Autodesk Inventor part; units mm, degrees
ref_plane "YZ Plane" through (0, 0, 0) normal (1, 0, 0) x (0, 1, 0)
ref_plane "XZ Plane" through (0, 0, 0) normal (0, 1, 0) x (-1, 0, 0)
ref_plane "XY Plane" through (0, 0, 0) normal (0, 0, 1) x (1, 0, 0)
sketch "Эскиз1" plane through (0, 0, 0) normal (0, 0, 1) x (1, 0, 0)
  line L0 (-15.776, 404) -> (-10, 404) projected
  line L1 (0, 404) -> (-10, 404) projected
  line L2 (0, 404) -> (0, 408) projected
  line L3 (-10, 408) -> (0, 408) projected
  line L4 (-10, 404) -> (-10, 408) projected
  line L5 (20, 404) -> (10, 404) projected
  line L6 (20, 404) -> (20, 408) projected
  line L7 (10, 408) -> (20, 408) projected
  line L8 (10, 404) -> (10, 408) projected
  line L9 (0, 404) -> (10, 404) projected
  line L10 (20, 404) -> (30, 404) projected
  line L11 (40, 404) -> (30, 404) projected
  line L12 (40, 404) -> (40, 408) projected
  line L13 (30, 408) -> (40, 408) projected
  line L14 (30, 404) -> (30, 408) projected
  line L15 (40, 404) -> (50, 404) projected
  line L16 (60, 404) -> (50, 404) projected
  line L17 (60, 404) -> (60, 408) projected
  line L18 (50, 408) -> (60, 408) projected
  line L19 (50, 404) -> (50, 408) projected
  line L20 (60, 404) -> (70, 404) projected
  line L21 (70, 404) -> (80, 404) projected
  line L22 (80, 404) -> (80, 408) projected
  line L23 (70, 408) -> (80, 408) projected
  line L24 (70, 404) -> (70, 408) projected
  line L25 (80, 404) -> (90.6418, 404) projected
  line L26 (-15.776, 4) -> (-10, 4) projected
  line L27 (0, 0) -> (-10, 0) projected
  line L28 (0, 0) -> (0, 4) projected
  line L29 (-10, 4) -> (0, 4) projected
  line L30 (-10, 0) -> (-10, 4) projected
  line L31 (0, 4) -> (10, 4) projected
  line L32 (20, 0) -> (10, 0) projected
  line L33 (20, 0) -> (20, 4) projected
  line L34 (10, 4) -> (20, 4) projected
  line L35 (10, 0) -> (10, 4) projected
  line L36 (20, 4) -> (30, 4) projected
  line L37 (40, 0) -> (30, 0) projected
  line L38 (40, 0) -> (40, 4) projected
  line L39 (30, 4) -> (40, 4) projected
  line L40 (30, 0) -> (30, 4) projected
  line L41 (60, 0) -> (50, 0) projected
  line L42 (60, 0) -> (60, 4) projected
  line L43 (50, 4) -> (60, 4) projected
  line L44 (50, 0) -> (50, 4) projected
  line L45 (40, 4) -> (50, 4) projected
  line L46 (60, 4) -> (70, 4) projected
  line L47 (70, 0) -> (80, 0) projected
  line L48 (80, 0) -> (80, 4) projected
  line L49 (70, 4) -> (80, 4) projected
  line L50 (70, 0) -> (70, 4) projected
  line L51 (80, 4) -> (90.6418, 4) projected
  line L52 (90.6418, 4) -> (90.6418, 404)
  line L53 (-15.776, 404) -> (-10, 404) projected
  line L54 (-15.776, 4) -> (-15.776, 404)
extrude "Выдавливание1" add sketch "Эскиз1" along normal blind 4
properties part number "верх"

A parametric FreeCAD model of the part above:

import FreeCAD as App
import Part
import Sketcher

V = App.Vector


def add_polygon(sketch, points):
    """Adds a closed chain of lines whose ends are joined by coincident constraints."""
    first, n = sketch.GeometryCount, len(points)
    for a, b in zip(points, points[1:] + points[:1]):
        sketch.addGeometry(Part.LineSegment(App.Vector(*a, 0), App.Vector(*b, 0)), False)
    for i in range(n):
        sketch.addConstraint(Sketcher.Constraint("Coincident", first + i, 2, first + (i + 1) % n, 1))

doc = App.newDocument("Part")
body = doc.addObject("PartDesign::Body", "Body")

sketch1 = body.newObject("Sketcher::SketchObject", "Sketch")
sketch1.AttachmentSupport = (doc.getObject("XY_Plane"), [""])
sketch1.MapMode = "FlatFace"
add_polygon(sketch1, [(-10, 404), (-15.776, 404), (-15.776, 4), (-10, 4), (-10, 0), (0, 0), (0, 4), (10, 4), (10, 0), (20, 0), (20, 4), (30, 4), (30, 0), (40, 0), (40, 4), (50, 4), (50, 0), (60, 0), (60, 4), (70, 4), (70, 0), (80, 0), (80, 4), (90.6418, 4), (90.6418, 404), (80, 404), (80, 408), (70, 408), (70, 404), (60, 404), (60, 408), (50, 408), (50, 404), (40, 404), (40, 408), (30, 408), (30, 404), (20, 404), (20, 408), (10, 408), (10, 404), (0, 404), (0, 408), (-10, 408)])
sketch1.addConstraint(Sketcher.Constraint("Horizontal", 0))
sketch1.addConstraint(Sketcher.Constraint("Vertical", 1))
sketch1.addConstraint(Sketcher.Constraint("Horizontal", 2))
sketch1.addConstraint(Sketcher.Constraint("Vertical", 3))
sketch1.addConstraint(Sketcher.Constraint("Horizontal", 4))
sketch1.addConstraint(Sketcher.Constraint("Vertical", 5))
sketch1.addConstraint(Sketcher.Constraint("Horizontal", 6))
sketch1.addConstraint(Sketcher.Constraint("Vertical", 7))
sketch1.addConstraint(Sketcher.Constraint("Horizontal", 8))
sketch1.addConstraint(Sketcher.Constraint("Vertical", 9))
sketch1.addConstraint(Sketcher.Constraint("Horizontal", 10))
sketch1.addConstraint(Sketcher.Constraint("Vertical", 11))
sketch1.addConstraint(Sketcher.Constraint("Horizontal", 12))
sketch1.addConstraint(Sketcher.Constraint("Vertical", 13))
sketch1.addConstraint(Sketcher.Constraint("Horizontal", 14))
sketch1.addConstraint(Sketcher.Constraint("Vertical", 15))
sketch1.addConstraint(Sketcher.Constraint("Horizontal", 16))
sketch1.addConstraint(Sketcher.Constraint("Vertical", 17))
sketch1.addConstraint(Sketcher.Constraint("Horizontal", 18))
sketch1.addConstraint(Sketcher.Constraint("Vertical", 19))
sketch1.addConstraint(Sketcher.Constraint("Horizontal", 20))
sketch1.addConstraint(Sketcher.Constraint("Vertical", 21))
sketch1.addConstraint(Sketcher.Constraint("Horizontal", 22))
sketch1.addConstraint(Sketcher.Constraint("Vertical", 23))
sketch1.addConstraint(Sketcher.Constraint("Horizontal", 24))
sketch1.addConstraint(Sketcher.Constraint("Vertical", 25))
sketch1.addConstraint(Sketcher.Constraint("Horizontal", 26))
sketch1.addConstraint(Sketcher.Constraint("Vertical", 27))
sketch1.addConstraint(Sketcher.Constraint("Horizontal", 28))
sketch1.addConstraint(Sketcher.Constraint("Vertical", 29))
sketch1.addConstraint(Sketcher.Constraint("Horizontal", 30))
sketch1.addConstraint(Sketcher.Constraint("Vertical", 31))
sketch1.addConstraint(Sketcher.Constraint("Horizontal", 32))
sketch1.addConstraint(Sketcher.Constraint("Vertical", 33))
sketch1.addConstraint(Sketcher.Constraint("Horizontal", 34))
sketch1.addConstraint(Sketcher.Constraint("Vertical", 35))
sketch1.addConstraint(Sketcher.Constraint("Horizontal", 36))
sketch1.addConstraint(Sketcher.Constraint("Vertical", 37))
sketch1.addConstraint(Sketcher.Constraint("Horizontal", 38))
sketch1.addConstraint(Sketcher.Constraint("Vertical", 39))
sketch1.addConstraint(Sketcher.Constraint("Horizontal", 40))
sketch1.addConstraint(Sketcher.Constraint("Vertical", 41))
sketch1.addConstraint(Sketcher.Constraint("Horizontal", 42))
sketch1.addConstraint(Sketcher.Constraint("Vertical", 43))
sketch1.addConstraint(Sketcher.Constraint("Coincident", 4, 2, -1, 1))
sketch1.addConstraint(Sketcher.Constraint("Symmetric", 3, 2, 7, 2, -1, 1))
sketch1.addConstraint(Sketcher.Constraint("Symmetric", 38, 2, 42, 2, -2))
sketch1.addConstraint(Sketcher.Constraint("PointOnObject", 11, 2, -1))
sketch1.addConstraint(Sketcher.Constraint("PointOnObject", 15, 2, -1))
sketch1.addConstraint(Sketcher.Constraint("PointOnObject", 19, 2, -1))
sketch1.addConstraint(Sketcher.Constraint("PointOnObject", 40, 2, -2))
sketch1.addConstraint(Sketcher.Constraint("Horizontal", 2, 2, 5, 2))
sketch1.addConstraint(Sketcher.Constraint("Horizontal", 6, 2, 9, 2))
sketch1.addConstraint(Sketcher.Constraint("Horizontal", 10, 2, 13, 2))
sketch1.addConstraint(Sketcher.Constraint("Horizontal", 14, 2, 17, 2))
sketch1.addConstraint(Sketcher.Constraint("Horizontal", 18, 2, 21, 2))
sketch1.addConstraint(Sketcher.Constraint("Horizontal", 0, 2, 23, 2))
sketch1.addConstraint(Sketcher.Constraint("Horizontal", 24, 2, 27, 2))
sketch1.addConstraint(Sketcher.Constraint("Horizontal", 26, 2, 29, 2))
sketch1.addConstraint(Sketcher.Constraint("Horizontal", 28, 2, 31, 2))
sketch1.addConstraint(Sketcher.Constraint("Horizontal", 30, 2, 33, 2))
sketch1.addConstraint(Sketcher.Constraint("Horizontal", 32, 2, 35, 2))
sketch1.addConstraint(Sketcher.Constraint("Horizontal", 34, 2, 37, 2))
sketch1.addConstraint(Sketcher.Constraint("Horizontal", 36, 2, 39, 2))
sketch1.addConstraint(Sketcher.Constraint("Vertical", 21, 2, 24, 2))
sketch1.addConstraint(Sketcher.Constraint("Vertical", 19, 2, 26, 2))
sketch1.addConstraint(Sketcher.Constraint("Vertical", 17, 2, 28, 2))
sketch1.addConstraint(Sketcher.Constraint("Vertical", 15, 2, 30, 2))
sketch1.addConstraint(Sketcher.Constraint("Vertical", 13, 2, 32, 2))
sketch1.addConstraint(Sketcher.Constraint("Vertical", 11, 2, 34, 2))
sketch1.addConstraint(Sketcher.Constraint("Vertical", 9, 2, 36, 2))
sketch1.addConstraint(Sketcher.Constraint("Vertical", 7, 2, 38, 2))
sketch1.addConstraint(Sketcher.Constraint("Equal", 6, 8))
sketch1.addConstraint(Sketcher.Constraint("Equal", 8, 10))
sketch1.addConstraint(Sketcher.Constraint("Equal", 10, 12))
sketch1.addConstraint(Sketcher.Constraint("Equal", 12, 14))
sketch1.addConstraint(Sketcher.Constraint("Equal", 14, 16))
sketch1.addConstraint(Sketcher.Constraint("Equal", 16, 18))
sketch1.addConstraint(Sketcher.Constraint("Equal", 18, 20))
sketch1.addConstraint(Sketcher.Constraint("Equal", 21, 25))
sketch1.addConstraint(Sketcher.Constraint("DistanceX", 4, 1, 4, 2, 10.0))
sketch1.addConstraint(Sketcher.Constraint("DistanceY", 1, 2, 1, 1, 400.0))
sketch1.addConstraint(Sketcher.Constraint("DistanceY", 3, 2, 3, 1, 4.0))
sketch1.addConstraint(Sketcher.Constraint("DistanceX", 0, 2, 0, 1, 5.776))
sketch1.addConstraint(Sketcher.Constraint("DistanceX", 22, 1, 22, 2, 10.6418))
pad1 = body.newObject("PartDesign::Pad", "Pad")
pad1.Profile = sketch1
pad1.Length = 4

doc.recompute()
